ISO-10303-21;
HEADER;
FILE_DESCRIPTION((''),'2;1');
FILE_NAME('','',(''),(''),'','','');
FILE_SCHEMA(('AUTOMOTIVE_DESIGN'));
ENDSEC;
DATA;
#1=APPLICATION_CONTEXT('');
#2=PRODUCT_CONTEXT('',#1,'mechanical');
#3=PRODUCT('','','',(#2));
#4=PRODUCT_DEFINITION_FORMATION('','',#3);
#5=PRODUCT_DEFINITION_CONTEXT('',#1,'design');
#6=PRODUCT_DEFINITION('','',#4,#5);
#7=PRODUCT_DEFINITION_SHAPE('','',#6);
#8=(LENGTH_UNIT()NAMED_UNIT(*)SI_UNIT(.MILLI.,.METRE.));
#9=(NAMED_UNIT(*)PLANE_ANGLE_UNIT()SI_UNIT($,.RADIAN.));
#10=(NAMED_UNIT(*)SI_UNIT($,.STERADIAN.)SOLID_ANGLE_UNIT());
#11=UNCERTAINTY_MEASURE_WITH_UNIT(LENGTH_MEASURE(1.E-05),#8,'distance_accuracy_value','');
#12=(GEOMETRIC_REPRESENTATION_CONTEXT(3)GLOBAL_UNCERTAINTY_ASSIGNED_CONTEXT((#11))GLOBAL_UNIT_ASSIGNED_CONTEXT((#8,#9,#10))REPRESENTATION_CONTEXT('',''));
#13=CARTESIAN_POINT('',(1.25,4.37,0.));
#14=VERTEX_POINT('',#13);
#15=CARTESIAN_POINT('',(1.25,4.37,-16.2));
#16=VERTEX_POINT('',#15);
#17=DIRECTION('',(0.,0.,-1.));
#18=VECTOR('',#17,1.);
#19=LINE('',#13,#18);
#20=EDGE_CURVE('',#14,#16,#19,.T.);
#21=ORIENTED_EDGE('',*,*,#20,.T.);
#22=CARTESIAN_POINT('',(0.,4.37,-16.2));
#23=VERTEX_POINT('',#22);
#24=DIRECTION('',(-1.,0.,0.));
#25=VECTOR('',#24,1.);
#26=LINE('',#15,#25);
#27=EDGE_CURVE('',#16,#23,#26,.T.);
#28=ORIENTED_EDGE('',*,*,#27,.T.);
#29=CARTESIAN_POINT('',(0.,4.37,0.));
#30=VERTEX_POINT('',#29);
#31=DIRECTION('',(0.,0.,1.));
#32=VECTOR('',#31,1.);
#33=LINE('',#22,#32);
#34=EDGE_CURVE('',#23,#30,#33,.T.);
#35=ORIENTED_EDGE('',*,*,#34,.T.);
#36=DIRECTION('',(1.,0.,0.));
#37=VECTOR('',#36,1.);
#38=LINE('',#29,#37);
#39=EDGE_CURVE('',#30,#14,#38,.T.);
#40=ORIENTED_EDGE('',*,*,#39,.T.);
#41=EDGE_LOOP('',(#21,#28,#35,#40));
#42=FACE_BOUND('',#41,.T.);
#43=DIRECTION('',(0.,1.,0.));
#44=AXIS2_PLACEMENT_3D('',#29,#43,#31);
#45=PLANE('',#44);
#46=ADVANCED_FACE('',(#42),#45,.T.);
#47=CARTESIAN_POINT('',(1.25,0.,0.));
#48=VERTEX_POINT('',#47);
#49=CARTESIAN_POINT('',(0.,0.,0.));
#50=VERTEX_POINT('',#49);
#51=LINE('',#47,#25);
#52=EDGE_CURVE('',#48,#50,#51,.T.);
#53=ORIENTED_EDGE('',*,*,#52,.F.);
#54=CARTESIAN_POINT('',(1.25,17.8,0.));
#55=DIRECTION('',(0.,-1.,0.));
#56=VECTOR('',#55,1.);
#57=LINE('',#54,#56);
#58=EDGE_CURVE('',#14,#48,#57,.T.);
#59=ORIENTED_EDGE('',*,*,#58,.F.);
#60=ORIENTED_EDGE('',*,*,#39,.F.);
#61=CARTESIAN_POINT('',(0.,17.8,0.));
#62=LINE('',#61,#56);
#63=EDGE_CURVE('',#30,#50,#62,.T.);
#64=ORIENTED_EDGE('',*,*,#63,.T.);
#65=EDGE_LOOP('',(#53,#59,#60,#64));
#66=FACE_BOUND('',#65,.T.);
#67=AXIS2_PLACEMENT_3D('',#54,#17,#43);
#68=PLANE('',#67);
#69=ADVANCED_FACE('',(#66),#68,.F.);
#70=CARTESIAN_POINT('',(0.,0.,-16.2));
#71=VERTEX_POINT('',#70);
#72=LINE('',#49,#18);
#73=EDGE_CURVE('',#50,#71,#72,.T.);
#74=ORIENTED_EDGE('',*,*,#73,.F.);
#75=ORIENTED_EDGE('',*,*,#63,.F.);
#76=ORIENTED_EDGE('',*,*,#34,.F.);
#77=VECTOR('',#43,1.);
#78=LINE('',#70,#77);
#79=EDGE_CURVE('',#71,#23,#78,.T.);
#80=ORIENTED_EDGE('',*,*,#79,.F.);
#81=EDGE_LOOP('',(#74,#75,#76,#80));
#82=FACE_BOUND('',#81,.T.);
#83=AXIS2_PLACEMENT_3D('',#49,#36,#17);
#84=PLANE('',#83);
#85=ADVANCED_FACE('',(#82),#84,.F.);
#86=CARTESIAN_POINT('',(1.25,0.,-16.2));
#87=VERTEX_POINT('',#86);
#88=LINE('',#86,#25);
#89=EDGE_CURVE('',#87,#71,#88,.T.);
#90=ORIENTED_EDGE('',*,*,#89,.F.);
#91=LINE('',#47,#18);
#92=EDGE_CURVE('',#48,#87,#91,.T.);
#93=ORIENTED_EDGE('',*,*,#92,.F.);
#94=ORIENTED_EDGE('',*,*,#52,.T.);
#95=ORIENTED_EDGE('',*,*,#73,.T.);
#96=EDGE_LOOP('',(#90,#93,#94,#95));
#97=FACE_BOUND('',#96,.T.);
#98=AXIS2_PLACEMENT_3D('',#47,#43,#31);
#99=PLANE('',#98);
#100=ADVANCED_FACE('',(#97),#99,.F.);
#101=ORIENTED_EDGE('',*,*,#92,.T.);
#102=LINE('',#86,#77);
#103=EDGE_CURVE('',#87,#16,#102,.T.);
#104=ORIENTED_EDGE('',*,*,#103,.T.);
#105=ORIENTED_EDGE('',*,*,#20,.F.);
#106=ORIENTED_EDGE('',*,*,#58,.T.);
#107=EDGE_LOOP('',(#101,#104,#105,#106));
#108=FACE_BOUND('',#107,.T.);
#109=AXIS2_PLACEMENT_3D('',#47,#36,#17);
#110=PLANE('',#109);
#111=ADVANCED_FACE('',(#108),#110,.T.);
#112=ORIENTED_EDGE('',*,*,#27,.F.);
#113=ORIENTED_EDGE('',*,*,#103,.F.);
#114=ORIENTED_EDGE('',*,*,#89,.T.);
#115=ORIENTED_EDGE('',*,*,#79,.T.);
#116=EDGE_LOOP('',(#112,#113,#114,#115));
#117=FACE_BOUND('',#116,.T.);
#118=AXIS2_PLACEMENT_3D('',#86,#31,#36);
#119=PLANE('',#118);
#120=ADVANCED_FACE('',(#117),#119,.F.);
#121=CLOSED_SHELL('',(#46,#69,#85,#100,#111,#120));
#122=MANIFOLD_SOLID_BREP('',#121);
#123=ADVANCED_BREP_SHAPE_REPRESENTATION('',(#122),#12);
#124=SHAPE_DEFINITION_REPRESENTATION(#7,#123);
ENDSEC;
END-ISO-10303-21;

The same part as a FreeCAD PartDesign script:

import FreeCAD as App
import Part
import Sketcher

V = App.Vector

doc = App.newDocument("Part")
body = doc.addObject("PartDesign::Body", "Body")

# Sketch on YZ plane
sketch1 = body.newObject("Sketcher::SketchObject", "Sketch")
sketch1.AttachmentSupport = (doc.getObject("YZ_Plane"), [""])
sketch1.MapMode = "FlatFace"
sketch1.addGeometry([
    Part.LineSegment(V(0, 0, 0), V(0, -16.2, 0)),  # 0
    Part.LineSegment(V(0, -16.2, 0), V(17.8, -16.2, 0)),  # 1
    Part.LineSegment(V(17.8, -16.2, 0), V(17.8, -15.6, 0)),  # 2
    Part.LineSegment(V(17.8, -15.6, 0), V(4, -15.6, 0)),  # 3
    Part.LineSegment(V(4, -15.6, 0), V(4, -0.6, 0)),  # 4
    Part.LineSegment(V(4, -0.6, 0), V(17.8, -0.6, 0)),  # 5
    Part.LineSegment(V(17.8, -0.6, 0), V(17.8, 0, 0)),  # 6
    Part.LineSegment(V(17.8, 0, 0), V(0, 0, 0)),  # 7
], False)
sketch1.addConstraint([
    Sketcher.Constraint("Coincident", 0, 2, 1, 1),
    Sketcher.Constraint("Coincident", 1, 2, 2, 1),
    Sketcher.Constraint("Coincident", 2, 2, 3, 1),
    Sketcher.Constraint("Coincident", 3, 2, 4, 1),
    Sketcher.Constraint("Coincident", 4, 2, 5, 1),
    Sketcher.Constraint("Coincident", 5, 2, 6, 1),
    Sketcher.Constraint("Coincident", 6, 2, 7, 1),
    Sketcher.Constraint("Coincident", 7, 2, 0, 1),
    Sketcher.Constraint("Vertical", 0),
    Sketcher.Constraint("Horizontal", 1),
    Sketcher.Constraint("Vertical", 2),
    Sketcher.Constraint("Horizontal", 3),
    Sketcher.Constraint("Vertical", 4),
    Sketcher.Constraint("Horizontal", 5),
    Sketcher.Constraint("Vertical", 6),
    Sketcher.Constraint("Horizontal", 7),
    Sketcher.Constraint("Coincident", 7, 2, -1, 1),
    Sketcher.Constraint("Vertical", 2, 2, 5, 2),
    Sketcher.Constraint("Equal", 2, 6),
    Sketcher.Constraint("DistanceY", 4, 1, 4, 2, 15.0),
    Sketcher.Constraint("DistanceX", 1, 1, 1, 2, 17.8),
    Sketcher.Constraint("DistanceY", 0, 2, 0, 1, 16.2),
    Sketcher.Constraint("DistanceX", 3, 2, 3, 1, 13.83),
])
pad1 = body.newObject("PartDesign::Pad", "Pad")
pad1.Profile = sketch1
pad1.Length = 1.25

# Sketch on YZ plane
sketch2 = body.newObject("Sketcher::SketchObject", "Sketch001")
sketch2.AttachmentSupport = (doc.getObject("YZ_Plane"), [""])
sketch2.MapMode = "FlatFace"
sketch2.AttachmentOffset = App.Placement(V(0, 0, 1.25), App.Rotation())
sketch2.addGeometry([
    Part.LineSegment(V(18, 0, 0), V(4, 0, 0)),
    Part.LineSegment(V(4, 0, 0), V(4, -16, 0)),
    Part.LineSegment(V(4, -16, 0), V(18, -16, 0)),
    Part.LineSegment(V(18, -16, 0), V(18, 0, 0)),
], False)
sketch2.addConstraint([
    Sketcher.Constraint("Coincident", 0, 2, 1, 1),
    Sketcher.Constraint("Coincident", 1, 2, 2, 1),
    Sketcher.Constraint("Coincident", 2, 2, 3, 1),
    Sketcher.Constraint("Coincident", 3, 2, 0, 1),
    Sketcher.Constraint("Horizontal", 0),
    Sketcher.Constraint("Vertical", 1),
    Sketcher.Constraint("Horizontal", 2),
    Sketcher.Constraint("Vertical", 3),
    Sketcher.Constraint("PointOnObject", 0, 2, -1),
    Sketcher.Constraint("DistanceY", 1, 2, 1, 1, 16.2),
    Sketcher.Constraint("DistanceX", 0, 2, 0, 1, 13.83),
    Sketcher.Constraint("DistanceX", -1, 1, 2, 2, 17.8),
])
pocket1 = body.newObject("PartDesign::Pocket", "Pocket")
pocket1.Profile = sketch2
pocket1.Length = 1.25

# Sketch on XZ plane
sketch3 = body.newObject("Sketcher::SketchObject", "Sketch002")
sketch3.AttachmentSupport = (doc.getObject("XZ_Plane"), [""])
sketch3.MapMode = "FlatFace"
sketch3.AttachmentOffset = App.Placement(V(0, 0, -3.97), App.Rotation())
sketch3.addGeometry([
    Part.LineSegment(V(0, -16.2, 0), V(0, 0, 0)),
    Part.LineSegment(V(0, 0, 0), V(1.2, 0, 0)),
    Part.LineSegment(V(1.2, 0, 0), V(1.2, -16.2, 0)),
    Part.LineSegment(V(1.2, -16.2, 0), V(0, -16.2, 0)),
], False)
sketch3.addConstraint([
    Sketcher.Constraint("Coincident", 0, 2, 1, 1),
    Sketcher.Constraint("Coincident", 1, 2, 2, 1),
    Sketcher.Constraint("Coincident", 2, 2, 3, 1),
    Sketcher.Constraint("Coincident", 3, 2, 0, 1),
    Sketcher.Constraint("Vertical", 0),
    Sketcher.Constraint("Horizontal", 1),
    Sketcher.Constraint("Vertical", 2),
    Sketcher.Constraint("Horizontal", 3),
    Sketcher.Constraint("Coincident", 0, 2, -1, 1),
    Sketcher.Constraint("DistanceY", 0, 1, 0, 2, 16.2),
    Sketcher.Constraint("DistanceX", 1, 1, 1, 2, 1.25),
])
pad2 = body.newObject("PartDesign::Pad", "Pad001")
pad2.Profile = sketch3
pad2.Length = 0.4
pad2.Reversed = True

doc.recompute()
